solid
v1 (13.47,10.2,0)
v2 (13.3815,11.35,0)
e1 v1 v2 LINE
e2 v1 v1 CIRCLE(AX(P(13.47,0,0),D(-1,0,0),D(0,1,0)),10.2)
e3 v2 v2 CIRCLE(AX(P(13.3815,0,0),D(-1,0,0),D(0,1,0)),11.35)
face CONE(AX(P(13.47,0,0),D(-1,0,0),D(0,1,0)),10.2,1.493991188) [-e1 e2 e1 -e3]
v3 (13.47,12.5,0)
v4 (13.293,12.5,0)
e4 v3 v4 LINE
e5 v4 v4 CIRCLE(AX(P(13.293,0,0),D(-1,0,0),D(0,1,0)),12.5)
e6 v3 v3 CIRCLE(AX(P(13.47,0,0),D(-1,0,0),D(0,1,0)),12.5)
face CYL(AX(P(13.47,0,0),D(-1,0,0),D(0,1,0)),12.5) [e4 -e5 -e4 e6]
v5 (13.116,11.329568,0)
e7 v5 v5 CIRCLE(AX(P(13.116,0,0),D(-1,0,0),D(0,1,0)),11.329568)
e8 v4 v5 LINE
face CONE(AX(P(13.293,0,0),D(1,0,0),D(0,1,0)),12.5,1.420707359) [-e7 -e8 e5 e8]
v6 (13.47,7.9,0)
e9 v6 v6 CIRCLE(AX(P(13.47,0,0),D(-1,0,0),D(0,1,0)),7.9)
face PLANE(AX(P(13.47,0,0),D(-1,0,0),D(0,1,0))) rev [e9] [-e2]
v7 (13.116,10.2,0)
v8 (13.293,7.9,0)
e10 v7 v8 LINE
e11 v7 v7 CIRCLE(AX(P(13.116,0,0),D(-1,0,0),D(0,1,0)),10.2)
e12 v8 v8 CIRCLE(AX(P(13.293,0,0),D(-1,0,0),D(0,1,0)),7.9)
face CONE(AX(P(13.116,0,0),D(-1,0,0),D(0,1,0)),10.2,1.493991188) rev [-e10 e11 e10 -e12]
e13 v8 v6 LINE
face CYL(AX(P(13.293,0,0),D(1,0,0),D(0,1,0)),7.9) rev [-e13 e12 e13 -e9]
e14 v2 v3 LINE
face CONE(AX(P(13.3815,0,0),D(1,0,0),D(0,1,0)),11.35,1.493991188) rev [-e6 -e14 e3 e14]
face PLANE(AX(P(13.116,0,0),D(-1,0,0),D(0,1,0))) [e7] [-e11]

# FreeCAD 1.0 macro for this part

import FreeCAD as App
import Part
import Sketcher

V = App.Vector


def add_polygon(sketch, points):
    """Adds a closed chain of lines whose ends are joined by coincident constraints."""
    first, n = sketch.GeometryCount, len(points)
    for a, b in zip(points, points[1:] + points[:1]):
        sketch.addGeometry(Part.LineSegment(App.Vector(*a, 0), App.Vector(*b, 0)), False)
    for i in range(n):
        sketch.addConstraint(Sketcher.Constraint("Coincident", first + i, 2, first + (i + 1) % n, 1))

doc = App.newDocument("Part")
params = doc.addObject("Spreadsheet::Sheet", "Params")
for row, (alias, value) in enumerate([
    ("sketch1_height", "2.3 mm"),
    ("revolution_angle", "360 deg"),
], start=1):
    params.set(f"A{row}", alias)
    params.set(f"B{row}", "=" + value)
    params.setAlias(f"B{row}", alias)

body = doc.addObject("PartDesign::Body", "Body")

# Sketch on XY plane
sketch1 = body.newObject("Sketcher::SketchObject", "Sketch")
sketch1.AttachmentSupport = (doc.getObject("XY_Plane"), [""])
sketch1.MapMode = "FlatFace"
add_polygon(sketch1, [(13.116, 11.329568), (13.116, 10.2), (13.293, 7.9), (13.47, 7.9), (13.47, 10.2), (13.3815, 11.35), (13.47, 12.5), (13.293, 12.5)])  # lines 0-7
sketch1.addConstraint([
    Sketcher.Constraint("Vertical", 0),
    Sketcher.Constraint("Horizontal", 2),
    Sketcher.Constraint("Vertical", 3),
    Sketcher.Constraint("Horizontal", 6),
    Sketcher.Constraint("Parallel", 1, 4),
    Sketcher.Constraint("Horizontal", 0, 2, 3, 2),
    Sketcher.Constraint("Vertical", 3, 2, 5, 2),
    Sketcher.Constraint("Vertical", 1, 2, 6, 2),
    Sketcher.Constraint("Equal", 4, 5),
    Sketcher.Constraint("DistanceY", 3, 1, 3, 2, 2.3),
    Sketcher.Constraint("DistanceY", -1, 1, 0, 2, 10.2),
    Sketcher.Constraint("DistanceY", -1, 1, 5, 2, 12.5),
    Sketcher.Constraint("DistanceX", 2, 1, 2, 2, 0.177),
    Sketcher.Constraint("DistanceX", -1, 1, 2, 2, 13.47),
    Sketcher.Constraint("DistanceX", -1, 1, 0, 2, 13.116),
    Sketcher.Constraint("DistanceY", 0, 2, 0, 1, 1.129568),
])
sketch1.setExpression("Constraints[17]", "Params.sketch1_height")
revolution = body.newObject("PartDesign::Revolution", "Revolution")
revolution.Profile = sketch1
revolution.ReferenceAxis = (sketch1, ["H_Axis"])
revolution.setExpression("Angle", "Params.revolution_angle")

doc.recompute()
